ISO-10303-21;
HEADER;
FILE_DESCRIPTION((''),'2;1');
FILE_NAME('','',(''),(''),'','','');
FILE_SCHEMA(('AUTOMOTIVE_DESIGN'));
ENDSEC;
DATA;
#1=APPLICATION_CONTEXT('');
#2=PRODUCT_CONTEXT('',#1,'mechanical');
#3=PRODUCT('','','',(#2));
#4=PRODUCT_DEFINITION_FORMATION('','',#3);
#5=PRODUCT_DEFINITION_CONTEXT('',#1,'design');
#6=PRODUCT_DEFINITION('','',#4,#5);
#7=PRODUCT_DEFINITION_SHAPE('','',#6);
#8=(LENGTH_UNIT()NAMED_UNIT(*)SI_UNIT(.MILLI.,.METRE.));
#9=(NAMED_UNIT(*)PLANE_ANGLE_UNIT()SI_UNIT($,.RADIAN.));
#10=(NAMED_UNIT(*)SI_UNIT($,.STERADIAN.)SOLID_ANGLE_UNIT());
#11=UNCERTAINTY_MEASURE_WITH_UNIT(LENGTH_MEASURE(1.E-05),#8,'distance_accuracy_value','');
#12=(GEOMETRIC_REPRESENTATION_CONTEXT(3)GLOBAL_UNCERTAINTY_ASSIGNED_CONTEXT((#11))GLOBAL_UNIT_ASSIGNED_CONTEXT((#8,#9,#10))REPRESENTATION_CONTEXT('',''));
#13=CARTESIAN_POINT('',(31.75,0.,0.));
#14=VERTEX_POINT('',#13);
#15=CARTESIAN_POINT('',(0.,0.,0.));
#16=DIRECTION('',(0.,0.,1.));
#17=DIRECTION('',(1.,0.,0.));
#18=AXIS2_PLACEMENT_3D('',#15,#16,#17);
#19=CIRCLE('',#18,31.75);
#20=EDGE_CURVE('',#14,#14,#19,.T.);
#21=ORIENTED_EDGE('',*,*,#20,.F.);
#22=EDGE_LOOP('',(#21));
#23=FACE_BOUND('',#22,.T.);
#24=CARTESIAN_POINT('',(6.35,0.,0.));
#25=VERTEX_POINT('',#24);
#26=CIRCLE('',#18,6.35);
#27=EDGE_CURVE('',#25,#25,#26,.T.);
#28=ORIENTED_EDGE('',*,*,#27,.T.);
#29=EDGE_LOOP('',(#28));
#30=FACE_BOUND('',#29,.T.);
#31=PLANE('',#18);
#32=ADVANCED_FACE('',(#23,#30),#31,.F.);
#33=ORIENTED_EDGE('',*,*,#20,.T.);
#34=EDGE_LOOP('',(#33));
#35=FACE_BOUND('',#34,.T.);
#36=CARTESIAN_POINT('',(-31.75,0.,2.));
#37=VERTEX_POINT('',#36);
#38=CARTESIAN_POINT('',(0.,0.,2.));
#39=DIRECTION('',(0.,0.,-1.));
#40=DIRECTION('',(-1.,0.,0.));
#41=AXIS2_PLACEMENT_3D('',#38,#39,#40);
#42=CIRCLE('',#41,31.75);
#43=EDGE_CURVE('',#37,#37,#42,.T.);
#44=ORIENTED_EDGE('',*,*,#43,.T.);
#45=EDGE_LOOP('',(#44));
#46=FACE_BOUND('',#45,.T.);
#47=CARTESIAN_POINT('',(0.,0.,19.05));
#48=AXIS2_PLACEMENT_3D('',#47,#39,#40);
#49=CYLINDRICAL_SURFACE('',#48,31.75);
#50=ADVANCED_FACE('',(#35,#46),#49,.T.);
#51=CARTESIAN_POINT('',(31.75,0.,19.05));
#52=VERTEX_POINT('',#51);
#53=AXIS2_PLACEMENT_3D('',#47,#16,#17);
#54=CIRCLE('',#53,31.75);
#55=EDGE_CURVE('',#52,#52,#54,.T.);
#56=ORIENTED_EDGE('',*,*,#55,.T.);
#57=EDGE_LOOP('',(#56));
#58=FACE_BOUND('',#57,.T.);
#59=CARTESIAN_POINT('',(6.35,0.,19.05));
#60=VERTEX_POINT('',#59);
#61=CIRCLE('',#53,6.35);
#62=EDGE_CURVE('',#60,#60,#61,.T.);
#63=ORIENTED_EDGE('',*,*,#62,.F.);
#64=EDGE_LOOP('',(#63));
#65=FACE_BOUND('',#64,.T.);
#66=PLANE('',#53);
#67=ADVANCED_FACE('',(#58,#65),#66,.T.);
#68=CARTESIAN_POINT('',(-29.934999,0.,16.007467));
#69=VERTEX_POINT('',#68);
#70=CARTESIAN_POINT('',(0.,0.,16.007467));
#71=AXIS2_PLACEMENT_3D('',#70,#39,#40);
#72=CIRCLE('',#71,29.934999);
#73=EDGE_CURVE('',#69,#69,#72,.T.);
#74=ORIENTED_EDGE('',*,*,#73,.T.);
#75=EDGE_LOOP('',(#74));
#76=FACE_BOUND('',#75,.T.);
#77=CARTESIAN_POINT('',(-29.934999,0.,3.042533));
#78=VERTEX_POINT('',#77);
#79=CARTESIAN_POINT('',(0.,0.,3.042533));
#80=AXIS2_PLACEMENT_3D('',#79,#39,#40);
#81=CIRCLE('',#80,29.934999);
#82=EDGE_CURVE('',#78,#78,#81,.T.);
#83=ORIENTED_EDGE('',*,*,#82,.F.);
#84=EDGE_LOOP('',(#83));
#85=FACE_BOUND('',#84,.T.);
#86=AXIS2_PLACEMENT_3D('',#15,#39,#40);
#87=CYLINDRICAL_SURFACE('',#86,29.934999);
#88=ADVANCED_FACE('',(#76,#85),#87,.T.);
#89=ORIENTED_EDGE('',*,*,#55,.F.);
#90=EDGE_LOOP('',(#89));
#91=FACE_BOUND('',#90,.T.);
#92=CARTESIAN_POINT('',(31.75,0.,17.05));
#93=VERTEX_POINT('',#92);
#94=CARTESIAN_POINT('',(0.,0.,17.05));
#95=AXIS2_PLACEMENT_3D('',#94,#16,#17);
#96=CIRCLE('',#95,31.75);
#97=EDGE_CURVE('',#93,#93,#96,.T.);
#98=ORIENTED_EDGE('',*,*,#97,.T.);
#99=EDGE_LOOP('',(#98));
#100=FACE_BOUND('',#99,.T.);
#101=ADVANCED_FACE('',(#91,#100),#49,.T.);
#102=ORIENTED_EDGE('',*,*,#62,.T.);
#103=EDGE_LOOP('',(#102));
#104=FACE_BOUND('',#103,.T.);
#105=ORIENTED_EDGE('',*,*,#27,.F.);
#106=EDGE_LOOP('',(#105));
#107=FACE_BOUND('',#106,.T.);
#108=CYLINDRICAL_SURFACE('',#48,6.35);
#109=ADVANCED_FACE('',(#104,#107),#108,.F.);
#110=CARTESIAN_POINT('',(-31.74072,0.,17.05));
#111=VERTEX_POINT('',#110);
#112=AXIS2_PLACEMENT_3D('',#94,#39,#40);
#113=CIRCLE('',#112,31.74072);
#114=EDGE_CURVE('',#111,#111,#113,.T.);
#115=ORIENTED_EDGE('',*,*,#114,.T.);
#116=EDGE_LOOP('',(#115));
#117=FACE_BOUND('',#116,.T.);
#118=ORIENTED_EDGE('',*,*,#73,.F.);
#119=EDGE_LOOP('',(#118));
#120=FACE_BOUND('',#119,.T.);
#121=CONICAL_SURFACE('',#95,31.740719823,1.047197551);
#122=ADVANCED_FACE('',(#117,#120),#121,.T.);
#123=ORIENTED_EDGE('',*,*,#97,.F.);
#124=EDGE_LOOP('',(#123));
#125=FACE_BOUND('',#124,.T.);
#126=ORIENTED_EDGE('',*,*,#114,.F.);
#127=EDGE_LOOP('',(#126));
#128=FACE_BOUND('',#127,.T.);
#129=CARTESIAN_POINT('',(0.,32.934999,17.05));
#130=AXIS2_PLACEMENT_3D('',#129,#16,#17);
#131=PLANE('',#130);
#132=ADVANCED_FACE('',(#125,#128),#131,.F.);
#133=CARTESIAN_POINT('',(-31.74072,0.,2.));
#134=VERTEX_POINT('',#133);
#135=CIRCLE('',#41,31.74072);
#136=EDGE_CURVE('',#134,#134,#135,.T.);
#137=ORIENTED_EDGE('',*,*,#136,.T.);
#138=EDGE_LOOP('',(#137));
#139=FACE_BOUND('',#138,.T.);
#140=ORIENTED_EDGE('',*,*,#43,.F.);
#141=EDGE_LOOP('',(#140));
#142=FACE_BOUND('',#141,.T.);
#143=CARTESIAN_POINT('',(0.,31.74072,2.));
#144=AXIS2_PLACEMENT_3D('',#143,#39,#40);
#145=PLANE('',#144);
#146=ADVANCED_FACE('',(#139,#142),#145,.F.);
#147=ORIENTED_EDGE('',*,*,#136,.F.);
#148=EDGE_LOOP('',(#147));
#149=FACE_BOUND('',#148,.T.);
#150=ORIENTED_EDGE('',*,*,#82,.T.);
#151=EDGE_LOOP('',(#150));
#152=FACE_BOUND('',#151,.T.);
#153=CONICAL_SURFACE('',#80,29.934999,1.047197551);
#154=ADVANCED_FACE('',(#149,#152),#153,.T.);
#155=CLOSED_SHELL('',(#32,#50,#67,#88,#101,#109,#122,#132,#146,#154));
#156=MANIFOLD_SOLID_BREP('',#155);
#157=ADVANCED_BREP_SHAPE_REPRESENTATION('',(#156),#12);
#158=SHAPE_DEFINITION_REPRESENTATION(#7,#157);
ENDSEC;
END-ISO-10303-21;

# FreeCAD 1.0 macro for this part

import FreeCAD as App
import Part
import Sketcher
Q = App.Units.Quantity

doc = App.newDocument("Part")
body = doc.addObject("PartDesign::Body", "Body")

# Sketch on XY plane
sketch1 = body.newObject("Sketcher::SketchObject", "Sketch")
sketch1.AttachmentSupport = (doc.getObject("XY_Plane"), [""])
sketch1.MapMode = "FlatFace"
sketch1.addGeometry([
    Part.Circle(App.Vector(0, 0, 0), App.Vector(0, 0, 1), 32),
    Part.Circle(App.Vector(0, 0, 0), App.Vector(0, 0, 1), 6),
], False)
sketch1.addConstraint([
    Sketcher.Constraint("Coincident", 0, 3, -1, 1),
    Sketcher.Constraint("Coincident", 1, 3, -1, 1),
    Sketcher.Constraint("Diameter", 0, Q("2.5 in")),
    Sketcher.Constraint("Diameter", 1, Q("0.5 in")),
])
pad1 = body.newObject("PartDesign::Pad", "Pad")
pad1.Profile = sketch1
pad1.Length = Q("0.75 in")

# Sketch on YZ plane
sketch2 = body.newObject("Sketcher::SketchObject", "Sketch001")
sketch2.AttachmentSupport = (doc.getObject("YZ_Plane"), [""])
sketch2.MapMode = "FlatFace"
sketch2.addGeometry([
    Part.LineSegment(App.Vector(29.9, 16, 0), App.Vector(29.9, 3, 0)),  # 0
    Part.LineSegment(App.Vector(29.9, 3, 0), App.Vector(31.7, 2, 0)),  # 1
    Part.LineSegment(App.Vector(31.7, 2, 0), App.Vector(32.9, 2, 0)),  # 2
    Part.LineSegment(App.Vector(32.9, 2, 0), App.Vector(32.9, 17.1, 0)),  # 3
    Part.LineSegment(App.Vector(32.9, 17.1, 0), App.Vector(31.7, 17.1, 0)),  # 4
    Part.LineSegment(App.Vector(31.7, 17.1, 0), App.Vector(29.9, 16, 0)),  # 5
], False)
sketch2.addConstraint([
    Sketcher.Constraint("Coincident", 0, 2, 1, 1),
    Sketcher.Constraint("Coincident", 1, 2, 2, 1),
    Sketcher.Constraint("Coincident", 2, 2, 3, 1),
    Sketcher.Constraint("Coincident", 3, 2, 4, 1),
    Sketcher.Constraint("Coincident", 4, 2, 5, 1),
    Sketcher.Constraint("Coincident", 5, 2, 0, 1),
    Sketcher.Constraint("Vertical", 0),
    Sketcher.Constraint("Horizontal", 2),
    Sketcher.Constraint("Vertical", 3),
    Sketcher.Constraint("Horizontal", 4),
    Sketcher.Constraint("Vertical", 1, 2, 4, 2),
    Sketcher.Constraint("Equal", 1, 5),
    Sketcher.Constraint("Angle", 1, Q("-30 deg")),
    Sketcher.Constraint("DistanceY", 3, 1, 3, 2, 15.05),
    Sketcher.Constraint("DistanceX", 2, 1, 2, 2, 1.194279),
    Sketcher.Constraint("DistanceX", -1, 1, 0, 2, 29.934999),
    Sketcher.Constraint("DistanceY", -1, 1, 1, 2, 2.0),
    Sketcher.Constraint("DistanceX", -1, 1, 2, 2, 32.934999),
])
groove = body.newObject("PartDesign::Groove", "Groove")
groove.Profile = sketch2
groove.ReferenceAxis = (sketch2, ["V_Axis"])
groove.Angle = 360

doc.recompute()
